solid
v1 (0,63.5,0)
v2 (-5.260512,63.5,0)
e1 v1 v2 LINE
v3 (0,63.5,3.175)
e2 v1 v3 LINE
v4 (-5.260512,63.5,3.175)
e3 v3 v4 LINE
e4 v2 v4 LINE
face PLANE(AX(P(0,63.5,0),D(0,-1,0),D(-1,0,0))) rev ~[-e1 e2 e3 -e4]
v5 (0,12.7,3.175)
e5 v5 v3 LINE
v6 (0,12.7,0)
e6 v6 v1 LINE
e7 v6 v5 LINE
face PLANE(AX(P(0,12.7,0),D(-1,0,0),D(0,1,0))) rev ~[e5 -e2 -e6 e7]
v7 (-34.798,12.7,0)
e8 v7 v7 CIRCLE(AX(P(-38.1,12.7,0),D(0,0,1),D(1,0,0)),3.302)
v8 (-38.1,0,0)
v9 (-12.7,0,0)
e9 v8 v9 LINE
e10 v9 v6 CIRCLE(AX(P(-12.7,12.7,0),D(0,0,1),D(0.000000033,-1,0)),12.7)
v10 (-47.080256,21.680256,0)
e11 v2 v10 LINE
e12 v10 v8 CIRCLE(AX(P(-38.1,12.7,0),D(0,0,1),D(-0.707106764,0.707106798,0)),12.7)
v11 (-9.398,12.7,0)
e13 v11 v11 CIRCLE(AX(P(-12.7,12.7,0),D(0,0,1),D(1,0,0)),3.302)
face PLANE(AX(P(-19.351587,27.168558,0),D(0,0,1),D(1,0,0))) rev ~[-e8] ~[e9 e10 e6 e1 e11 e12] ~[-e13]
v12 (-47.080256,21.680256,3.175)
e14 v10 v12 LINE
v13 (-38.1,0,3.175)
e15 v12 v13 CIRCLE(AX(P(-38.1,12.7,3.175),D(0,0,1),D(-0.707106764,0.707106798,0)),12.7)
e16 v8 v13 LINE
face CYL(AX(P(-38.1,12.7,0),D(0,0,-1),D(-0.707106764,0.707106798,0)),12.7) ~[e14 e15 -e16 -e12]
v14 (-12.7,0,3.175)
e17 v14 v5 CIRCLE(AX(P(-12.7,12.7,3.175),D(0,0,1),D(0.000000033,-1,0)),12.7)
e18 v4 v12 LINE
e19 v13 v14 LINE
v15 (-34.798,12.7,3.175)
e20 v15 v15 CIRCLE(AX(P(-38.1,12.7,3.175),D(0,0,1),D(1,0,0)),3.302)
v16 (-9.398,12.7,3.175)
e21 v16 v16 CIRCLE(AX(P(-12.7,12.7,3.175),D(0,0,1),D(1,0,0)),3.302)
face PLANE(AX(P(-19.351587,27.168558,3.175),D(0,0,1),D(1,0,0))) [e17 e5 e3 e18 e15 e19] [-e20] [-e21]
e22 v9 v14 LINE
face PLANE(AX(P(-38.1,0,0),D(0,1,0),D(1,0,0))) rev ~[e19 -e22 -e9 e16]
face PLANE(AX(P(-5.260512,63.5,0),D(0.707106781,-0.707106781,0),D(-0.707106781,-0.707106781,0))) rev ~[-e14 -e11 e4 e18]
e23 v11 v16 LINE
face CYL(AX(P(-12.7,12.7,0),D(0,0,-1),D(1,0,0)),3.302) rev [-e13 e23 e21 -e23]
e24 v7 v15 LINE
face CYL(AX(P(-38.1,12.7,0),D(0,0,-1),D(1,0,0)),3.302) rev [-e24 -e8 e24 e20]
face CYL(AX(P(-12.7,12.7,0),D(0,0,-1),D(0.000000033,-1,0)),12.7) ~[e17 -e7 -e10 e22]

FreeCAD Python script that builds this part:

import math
import FreeCAD as App
import Part
import Sketcher
from FreeCAD import Vector
Q = App.Units.Quantity

doc = App.newDocument("Part")
body = doc.addObject("PartDesign::Body", "Body")

# Sketch on XY plane
sketch1 = doc.addObject("Sketcher::SketchObject", "Sketch")
body.addObject(sketch1)
sketch1.AttachmentSupport = (doc.XY_Plane, [""])
sketch1.MapMode = "FlatFace"
sketch1.addGeometry([
    Part.LineSegment(Vector(-5.3, 63.5, 0), Vector(-47.1, 21.7, 0)),  # 0
    Part.ArcOfCircle(Part.Circle(Vector(-38.1, 12.7, 0), Vector(0, 0, 1), 12.7), math.radians(135), math.radians(270)),  # 1
    Part.LineSegment(Vector(-38.1, 0, 0), Vector(-12.7, 0, 0)),  # 2
    Part.ArcOfCircle(Part.Circle(Vector(-12.7, 12.7, 0), Vector(0, 0, 1), 12.7), math.radians(-90), math.radians(0)),  # 3
    Part.LineSegment(Vector(0, 12.7, 0), Vector(0, 63.5, 0)),  # 4
    Part.LineSegment(Vector(0, 63.5, 0), Vector(-5.3, 63.5, 0)),  # 5
    Part.Circle(Vector(-38.1, 12.7, 0), Vector(0, 0, 1), 3.3),  # 6
    Part.Circle(Vector(-12.7, 12.7, 0), Vector(0, 0, 1), 3.3),  # 7
], False)
sketch1.addConstraint([
    Sketcher.Constraint("Tangent", 0, 2, 1, 1),
    Sketcher.Constraint("Tangent", 1, 2, 2, 1),
    Sketcher.Constraint("Tangent", 2, 2, 3, 1),
    Sketcher.Constraint("Tangent", 3, 2, 4, 1),
    Sketcher.Constraint("Coincident", 4, 2, 5, 1),
    Sketcher.Constraint("Coincident", 5, 2, 0, 1),
    Sketcher.Constraint("Horizontal", 2),
    Sketcher.Constraint("Vertical", 4),
    Sketcher.Constraint("Horizontal", 5),
    Sketcher.Constraint("Coincident", 6, 3, 1, 3),
    Sketcher.Constraint("Coincident", 7, 3, 3, 3),
    Sketcher.Constraint("Equal", 1, 3),
    Sketcher.Constraint("Equal", 6, 7),
    Sketcher.Constraint("PointOnObject", 1, 2, -1),
    Sketcher.Constraint("PointOnObject", 3, 2, -2),
    Sketcher.Constraint("Radius", 1, Q("0.5 in")),
    Sketcher.Constraint("Diameter", 6, Q("0.26 in")),
    Sketcher.Constraint("DistanceX", 2, 1, 2, 2, Q("1 in")),
    Sketcher.Constraint("DistanceY", 4, 1, 4, 2, Q("2 in")),
    Sketcher.Constraint("Angle", 0, Q("-135 deg")),
])
pad1 = doc.addObject("PartDesign::Pad", "Pad")
body.addObject(pad1)
pad1.Profile = sketch1
pad1.Length = Q("0.125 in")

doc.recompute()
